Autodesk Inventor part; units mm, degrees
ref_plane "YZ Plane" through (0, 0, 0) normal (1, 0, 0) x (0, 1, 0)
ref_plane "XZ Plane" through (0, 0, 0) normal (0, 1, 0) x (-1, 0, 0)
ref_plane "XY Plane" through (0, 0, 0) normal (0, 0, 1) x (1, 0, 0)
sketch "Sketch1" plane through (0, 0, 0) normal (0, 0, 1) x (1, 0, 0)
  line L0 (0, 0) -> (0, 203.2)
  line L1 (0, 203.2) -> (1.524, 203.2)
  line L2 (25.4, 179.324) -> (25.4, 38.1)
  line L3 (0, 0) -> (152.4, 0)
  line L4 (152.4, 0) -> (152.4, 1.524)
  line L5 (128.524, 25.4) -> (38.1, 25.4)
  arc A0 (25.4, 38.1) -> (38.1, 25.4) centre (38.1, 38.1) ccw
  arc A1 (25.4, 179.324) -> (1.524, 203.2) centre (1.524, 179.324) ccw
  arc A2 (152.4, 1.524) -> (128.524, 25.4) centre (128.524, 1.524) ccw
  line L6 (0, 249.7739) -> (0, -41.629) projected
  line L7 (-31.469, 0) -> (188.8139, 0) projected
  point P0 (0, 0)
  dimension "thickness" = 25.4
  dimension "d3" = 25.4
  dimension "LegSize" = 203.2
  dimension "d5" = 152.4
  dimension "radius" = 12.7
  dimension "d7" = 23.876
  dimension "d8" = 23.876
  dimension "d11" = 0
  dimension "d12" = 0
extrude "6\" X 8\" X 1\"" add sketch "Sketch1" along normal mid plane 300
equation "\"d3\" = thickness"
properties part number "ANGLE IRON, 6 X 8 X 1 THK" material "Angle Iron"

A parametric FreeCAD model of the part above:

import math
import FreeCAD as App
import Part
import Sketcher
from FreeCAD import Vector
Q = App.Units.Quantity

doc = App.newDocument("Part")
body = doc.addObject("PartDesign::Body", "Body")

# Sketch on XY plane
sketch1 = body.newObject("Sketcher::SketchObject", "Sketch")
sketch1.AttachmentSupport = (doc.getObject("XY_Plane"), [""])
sketch1.MapMode = "FlatFace"
sketch1.addGeometry([
    Part.LineSegment(Vector(0, 203.2, 0), Vector(0, 0, 0)),  # 0
    Part.LineSegment(Vector(0, 0, 0), Vector(152.4, 0, 0)),  # 1
    Part.LineSegment(Vector(152.4, 0, 0), Vector(152.4, 1.5, 0)),  # 2
    Part.ArcOfCircle(Part.Circle(Vector(128.5, 1.5, 0), Vector(0, 0, 1), 23.9), math.radians(0), math.radians(90)),  # 3
    Part.LineSegment(Vector(128.5, 25.4, 0), Vector(38.1, 25.4, 0)),  # 4
    Part.ArcOfCircle(Part.Circle(Vector(38.1, 38.1, 0), Vector(0, 0, 1), 12.7), math.radians(180), math.radians(270)),  # 5
    Part.LineSegment(Vector(25.4, 38.1, 0), Vector(25.4, 179.3, 0)),  # 6
    Part.ArcOfCircle(Part.Circle(Vector(1.5, 179.3, 0), Vector(0, 0, 1), 23.9), math.radians(0), math.radians(90)),  # 7
    Part.LineSegment(Vector(1.5, 203.2, 0), Vector(0, 203.2, 0)),  # 8
], False)
sketch1.addConstraint([
    Sketcher.Constraint("Coincident", 0, 2, 1, 1),
    Sketcher.Constraint("Coincident", 1, 2, 2, 1),
    Sketcher.Constraint("Tangent", 2, 2, 3, 1),
    Sketcher.Constraint("Tangent", 3, 2, 4, 1),
    Sketcher.Constraint("Tangent", 4, 2, 5, 2),
    Sketcher.Constraint("Tangent", 5, 1, 6, 1),
    Sketcher.Constraint("Tangent", 6, 2, 7, 1),
    Sketcher.Constraint("Tangent", 7, 2, 8, 1),
    Sketcher.Constraint("Coincident", 8, 2, 0, 1),
    Sketcher.Constraint("Vertical", 0),
    Sketcher.Constraint("Horizontal", 1),
    Sketcher.Constraint("Vertical", 2),
    Sketcher.Constraint("Horizontal", 4),
    Sketcher.Constraint("Vertical", 6),
    Sketcher.Constraint("Horizontal", 8),
    Sketcher.Constraint("Coincident", 0, 2, -1, 1),
    Sketcher.Constraint("Equal", 3, 7),
    Sketcher.Constraint("Equal", 8, 2),
    Sketcher.Constraint("Radius", 5, Q("0.5 in")),
    Sketcher.Constraint("DistanceX", 1, 1, 1, 2, Q("6 in")),
    Sketcher.Constraint("DistanceY", 0, 2, 0, 1, Q("8 in")),
    Sketcher.Constraint("Radius", 3, Q("0.94 in")),
    Sketcher.Constraint("DistanceY", -1, 1, 3, 2, Q("1 in")),
])
pad1 = body.newObject("PartDesign::Pad", "Pad")
pad1.Profile = sketch1
pad1.Length = 300
pad1.Midplane = True

doc.recompute()
